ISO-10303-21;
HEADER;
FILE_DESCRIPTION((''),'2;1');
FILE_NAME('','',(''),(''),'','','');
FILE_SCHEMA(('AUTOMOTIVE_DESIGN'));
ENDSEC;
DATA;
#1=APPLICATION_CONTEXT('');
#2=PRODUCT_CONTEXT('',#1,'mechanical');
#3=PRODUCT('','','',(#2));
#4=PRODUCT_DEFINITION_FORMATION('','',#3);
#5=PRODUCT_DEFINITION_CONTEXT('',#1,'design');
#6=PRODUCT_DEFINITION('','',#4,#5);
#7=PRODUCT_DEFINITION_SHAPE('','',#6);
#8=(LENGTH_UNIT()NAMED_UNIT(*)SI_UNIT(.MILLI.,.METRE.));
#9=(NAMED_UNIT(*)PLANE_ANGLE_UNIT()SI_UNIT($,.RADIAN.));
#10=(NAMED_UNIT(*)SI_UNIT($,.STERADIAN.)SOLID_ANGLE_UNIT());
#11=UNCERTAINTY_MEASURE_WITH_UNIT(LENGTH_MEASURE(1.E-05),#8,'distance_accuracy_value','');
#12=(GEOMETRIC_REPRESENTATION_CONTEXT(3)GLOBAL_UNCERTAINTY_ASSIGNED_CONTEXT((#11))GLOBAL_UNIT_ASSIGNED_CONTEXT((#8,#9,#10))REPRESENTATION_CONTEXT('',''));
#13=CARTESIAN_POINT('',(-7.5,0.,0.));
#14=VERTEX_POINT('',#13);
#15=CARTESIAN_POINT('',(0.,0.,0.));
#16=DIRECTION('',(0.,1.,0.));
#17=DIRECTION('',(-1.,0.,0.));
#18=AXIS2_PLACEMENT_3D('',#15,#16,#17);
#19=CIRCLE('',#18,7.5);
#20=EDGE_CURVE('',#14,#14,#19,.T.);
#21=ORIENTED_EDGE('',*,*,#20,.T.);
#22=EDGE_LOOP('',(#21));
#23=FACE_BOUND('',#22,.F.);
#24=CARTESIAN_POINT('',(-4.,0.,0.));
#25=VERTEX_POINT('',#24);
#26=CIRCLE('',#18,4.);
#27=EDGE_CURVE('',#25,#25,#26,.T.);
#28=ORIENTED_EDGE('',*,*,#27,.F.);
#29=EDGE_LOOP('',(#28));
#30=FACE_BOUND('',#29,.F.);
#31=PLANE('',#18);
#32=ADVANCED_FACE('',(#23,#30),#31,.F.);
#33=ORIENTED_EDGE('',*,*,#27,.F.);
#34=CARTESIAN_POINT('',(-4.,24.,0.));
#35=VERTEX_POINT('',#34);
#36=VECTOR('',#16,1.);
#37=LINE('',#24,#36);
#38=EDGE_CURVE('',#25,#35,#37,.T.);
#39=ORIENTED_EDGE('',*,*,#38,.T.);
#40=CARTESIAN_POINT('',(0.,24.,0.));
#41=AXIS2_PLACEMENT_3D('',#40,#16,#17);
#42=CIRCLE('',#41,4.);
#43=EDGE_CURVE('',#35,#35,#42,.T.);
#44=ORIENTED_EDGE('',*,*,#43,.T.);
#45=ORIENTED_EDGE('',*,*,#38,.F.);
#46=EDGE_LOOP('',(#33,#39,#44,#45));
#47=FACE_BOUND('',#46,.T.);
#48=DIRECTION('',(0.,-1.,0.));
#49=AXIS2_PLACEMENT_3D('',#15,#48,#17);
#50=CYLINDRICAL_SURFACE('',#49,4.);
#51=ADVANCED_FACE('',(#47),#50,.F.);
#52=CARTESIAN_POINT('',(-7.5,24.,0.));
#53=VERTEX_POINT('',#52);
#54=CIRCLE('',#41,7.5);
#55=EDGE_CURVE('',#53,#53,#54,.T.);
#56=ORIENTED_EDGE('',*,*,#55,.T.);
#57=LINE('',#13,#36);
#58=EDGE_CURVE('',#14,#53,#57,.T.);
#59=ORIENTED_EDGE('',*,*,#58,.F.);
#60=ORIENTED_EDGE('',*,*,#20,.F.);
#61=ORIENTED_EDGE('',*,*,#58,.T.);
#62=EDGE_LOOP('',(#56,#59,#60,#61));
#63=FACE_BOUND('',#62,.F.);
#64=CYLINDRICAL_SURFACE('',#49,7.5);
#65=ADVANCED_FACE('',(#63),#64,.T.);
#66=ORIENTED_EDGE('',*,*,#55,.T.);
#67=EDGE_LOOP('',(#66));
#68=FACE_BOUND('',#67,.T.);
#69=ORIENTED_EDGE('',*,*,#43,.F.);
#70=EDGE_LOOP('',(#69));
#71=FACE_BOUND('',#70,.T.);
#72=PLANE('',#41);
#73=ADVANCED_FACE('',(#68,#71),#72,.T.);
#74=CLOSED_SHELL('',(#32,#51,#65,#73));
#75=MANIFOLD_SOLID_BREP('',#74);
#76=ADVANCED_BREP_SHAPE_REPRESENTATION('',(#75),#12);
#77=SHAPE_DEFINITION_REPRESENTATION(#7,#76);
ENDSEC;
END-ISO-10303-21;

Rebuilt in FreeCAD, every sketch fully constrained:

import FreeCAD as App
import Part
import Sketcher

doc = App.newDocument("Part")
params = doc.addObject("Spreadsheet::Sheet", "Params")
for row, (alias, value) in enumerate([
    ("sketch1_diameter", "15 mm"),
    ("sketch1_diameter2", "8 mm"),
    ("pad1_length", "24 mm"),
], start=1):
    params.set(f"A{row}", alias)
    params.set(f"B{row}", "=" + value)
    params.setAlias(f"B{row}", alias)

body = doc.addObject("PartDesign::Body", "Body")

# Sketch on XZ plane
sketch1 = body.newObject("Sketcher::SketchObject", "Sketch")
sketch1.AttachmentSupport = (doc.getObject("XZ_Plane"), [""])
sketch1.MapMode = "FlatFace"
sketch1.addGeometry(Part.Circle(App.Vector(0, 0, 0), App.Vector(0, 0, 1), 7.5), False)
sketch1.addGeometry(Part.Circle(App.Vector(0, 0, 0), App.Vector(0, 0, 1), 4), False)
sketch1.addConstraint(Sketcher.Constraint("Coincident", 0, 3, -1, 1))
sketch1.addConstraint(Sketcher.Constraint("Coincident", 1, 3, -1, 1))
sketch1.addConstraint(Sketcher.Constraint("Diameter", 0, 15.0))
sketch1.addConstraint(Sketcher.Constraint("Diameter", 1, 8.0))
sketch1.setExpression("Constraints[2]", "Params.sketch1_diameter")
sketch1.setExpression("Constraints[3]", "Params.sketch1_diameter2")
pad1 = body.newObject("PartDesign::Pad", "Pad")
pad1.Profile = sketch1
pad1.setExpression("Length", "Params.pad1_length")
pad1.Reversed = True

doc.recompute()
